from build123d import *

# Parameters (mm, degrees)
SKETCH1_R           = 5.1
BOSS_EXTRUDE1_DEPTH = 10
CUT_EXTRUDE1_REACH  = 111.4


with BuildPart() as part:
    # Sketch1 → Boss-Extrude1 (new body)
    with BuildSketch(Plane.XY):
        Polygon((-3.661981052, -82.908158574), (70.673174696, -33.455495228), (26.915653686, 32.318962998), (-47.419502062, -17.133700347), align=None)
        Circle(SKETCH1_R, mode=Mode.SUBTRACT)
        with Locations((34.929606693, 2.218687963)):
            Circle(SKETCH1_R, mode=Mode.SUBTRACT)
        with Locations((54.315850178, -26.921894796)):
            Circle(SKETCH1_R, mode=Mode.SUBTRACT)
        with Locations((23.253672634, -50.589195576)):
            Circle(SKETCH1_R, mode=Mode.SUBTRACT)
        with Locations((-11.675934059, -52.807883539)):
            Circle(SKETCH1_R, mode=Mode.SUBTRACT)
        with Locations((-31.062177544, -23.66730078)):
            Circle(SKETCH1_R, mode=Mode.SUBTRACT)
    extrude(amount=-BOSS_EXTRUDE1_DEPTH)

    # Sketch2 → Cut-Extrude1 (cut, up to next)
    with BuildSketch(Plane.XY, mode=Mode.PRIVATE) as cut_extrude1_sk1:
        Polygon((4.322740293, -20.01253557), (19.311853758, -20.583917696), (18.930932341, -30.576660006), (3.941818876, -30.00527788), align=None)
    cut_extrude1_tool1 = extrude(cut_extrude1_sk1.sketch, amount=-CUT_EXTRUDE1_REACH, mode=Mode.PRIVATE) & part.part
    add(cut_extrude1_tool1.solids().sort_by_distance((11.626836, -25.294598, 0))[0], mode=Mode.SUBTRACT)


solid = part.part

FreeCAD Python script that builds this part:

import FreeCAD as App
import Part
import Sketcher
from FreeCAD import Vector
Q = App.Units.Quantity

doc = App.newDocument("Part")
body = doc.addObject("PartDesign::Body", "Body")

# Sketch on XY plane
sketch1 = body.newObject("Sketcher::SketchObject", "Sketch")
sketch1.AttachmentSupport = (doc.getObject("XY_Plane"), [""])
sketch1.MapMode = "FlatFace"
sketch1.addGeometry(Part.LineSegment(Vector(-4, -83, 0), Vector(71, -33, 0)), False)
sketch1.addGeometry(Part.LineSegment(Vector(71, -33, 0), Vector(27, 32, 0)), False)
sketch1.addGeometry(Part.LineSegment(Vector(27, 32, 0), Vector(-47, -17, 0)), False)
sketch1.addGeometry(Part.LineSegment(Vector(-47, -17, 0), Vector(-4, -83, 0)), False)
sketch1.addGeometry(Part.Circle(Vector(-12, -53, 0), Vector(0, 0, 1), 5), False)
sketch1.addGeometry(Part.Circle(Vector(23, -51, 0), Vector(0, 0, 1), 5), False)
sketch1.addGeometry(Part.Circle(Vector(54, -27, 0), Vector(0, 0, 1), 5), False)
sketch1.addGeometry(Part.Circle(Vector(-31, -24, 0), Vector(0, 0, 1), 5), False)
sketch1.addGeometry(Part.Circle(Vector(0, 0, 0), Vector(0, 0, 1), 5), False)
sketch1.addGeometry(Part.Circle(Vector(35, 2, 0), Vector(0, 0, 1), 5), False)
sketch1.addConstraint(Sketcher.Constraint("Coincident", 0, 2, 1, 1))
sketch1.addConstraint(Sketcher.Constraint("Coincident", 1, 2, 2, 1))
sketch1.addConstraint(Sketcher.Constraint("Coincident", 2, 2, 3, 1))
sketch1.addConstraint(Sketcher.Constraint("Coincident", 3, 2, 0, 1))
sketch1.addConstraint(Sketcher.Constraint("Coincident", 8, 3, -1, 1))
sketch1.addConstraint(Sketcher.Constraint("Equal", 4, 5))
sketch1.addConstraint(Sketcher.Constraint("Equal", 5, 6))
sketch1.addConstraint(Sketcher.Constraint("Equal", 6, 7))
sketch1.addConstraint(Sketcher.Constraint("Equal", 7, 8))
sketch1.addConstraint(Sketcher.Constraint("Equal", 8, 9))
sketch1.addConstraint(Sketcher.Constraint("Perpendicular", 0, 1))
sketch1.addConstraint(Sketcher.Constraint("Perpendicular", 1, 2))
sketch1.addConstraint(Sketcher.Constraint("Perpendicular", 2, 3))
sketch1.addConstraint(Sketcher.Constraint("Diameter", 4, Q("10.2 mm")))
sketch1.addConstraint(Sketcher.Constraint("Distance", 1, Q("79 mm")))
sketch1.addConstraint(Sketcher.Constraint("DistanceY", 7, 3, -1, 1, Q("23.667301 mm")))
sketch1.addConstraint(Sketcher.Constraint("DistanceY", 2, 2, -1, 1, Q("17.1337 mm")))
sketch1.addConstraint(Sketcher.Constraint("DistanceY", 5, 3, 6, 3, Q("23.667301 mm")))
sketch1.addConstraint(Sketcher.Constraint("DistanceY", 0, 2, 6, 3, Q("6.5336 mm")))
sketch1.addConstraint(Sketcher.Constraint("DistanceX", -1, 1, 6, 3, Q("54.31585 mm")))
sketch1.addConstraint(Sketcher.Constraint("DistanceX", 3, 2, -1, 1, Q("3.661981 mm")))
sketch1.addConstraint(Sketcher.Constraint("DistanceY", 3, 2, -1, 1, Q("82.908159 mm")))
sketch1.addConstraint(Sketcher.Constraint("DistanceY", 4, 3, 6, 3, Q("25.885989 mm")))
sketch1.addConstraint(Sketcher.Constraint("DistanceX", 7, 3, 5, 3, Q("54.31585 mm")))
sketch1.addConstraint(Sketcher.Constraint("DistanceY", 7, 3, 9, 3, Q("25.885989 mm")))
sketch1.addConstraint(Sketcher.Constraint("DistanceX", 4, 3, 9, 3, Q("46.605541 mm")))
sketch1.addConstraint(Sketcher.Constraint("DistanceY", 4, 3, 9, 3, Q("55.026572 mm")))
sketch1.addConstraint(Sketcher.Constraint("DistanceX", 9, 3, 0, 2, Q("35.743568 mm")))
sketch1.addConstraint(Sketcher.Constraint("DistanceX", 7, 3, 1, 2, Q("57.977831 mm")))
pad1 = body.newObject("PartDesign::Pad", "Pad")
pad1.Profile = sketch1
pad1.Length = 10
pad1.Reversed = True

# Sketch on XY plane
sketch2 = body.newObject("Sketcher::SketchObject", "Sketch001")
sketch2.AttachmentSupport = (doc.getObject("XY_Plane"), [""])
sketch2.MapMode = "FlatFace"
sketch2.addGeometry(Part.LineSegment(Vector(19, -21, 0), Vector(4, -20, 0)), False)
sketch2.addGeometry(Part.LineSegment(Vector(4, -20, 0), Vector(4, -30, 0)), False)
sketch2.addGeometry(Part.LineSegment(Vector(4, -30, 0), Vector(19, -31, 0)), False)
sketch2.addGeometry(Part.LineSegment(Vector(19, -31, 0), Vector(19, -21, 0)), False)
sketch2.addConstraint(Sketcher.Constraint("Coincident", 0, 2, 1, 1))
sketch2.addConstraint(Sketcher.Constraint("Coincident", 1, 2, 2, 1))
sketch2.addConstraint(Sketcher.Constraint("Coincident", 2, 2, 3, 1))
sketch2.addConstraint(Sketcher.Constraint("Coincident", 3, 2, 0, 1))
sketch2.addConstraint(Sketcher.Constraint("Perpendicular", 0, 1))
sketch2.addConstraint(Sketcher.Constraint("Perpendicular", 1, 2))
sketch2.addConstraint(Sketcher.Constraint("Perpendicular", 2, 3))
sketch2.addConstraint(Sketcher.Constraint("Distance", 0, Q("15 mm")))
sketch2.addConstraint(Sketcher.Constraint("Distance", 1, Q("10 mm")))
sketch2.addConstraint(Sketcher.Constraint("DistanceX", -1, 1, 0, 2, Q("4.32274 mm")))
sketch2.addConstraint(Sketcher.Constraint("DistanceX", -1, 1, 1, 2, Q("3.941819 mm")))
sketch2.addConstraint(Sketcher.Constraint("DistanceY", 2, 2, -1, 1, Q("30.57666 mm")))
pocket1 = body.newObject("PartDesign::Pocket", "Pocket")
pocket1.Profile = sketch2
pocket1.Type = "UpToFirst"

doc.recompute()
